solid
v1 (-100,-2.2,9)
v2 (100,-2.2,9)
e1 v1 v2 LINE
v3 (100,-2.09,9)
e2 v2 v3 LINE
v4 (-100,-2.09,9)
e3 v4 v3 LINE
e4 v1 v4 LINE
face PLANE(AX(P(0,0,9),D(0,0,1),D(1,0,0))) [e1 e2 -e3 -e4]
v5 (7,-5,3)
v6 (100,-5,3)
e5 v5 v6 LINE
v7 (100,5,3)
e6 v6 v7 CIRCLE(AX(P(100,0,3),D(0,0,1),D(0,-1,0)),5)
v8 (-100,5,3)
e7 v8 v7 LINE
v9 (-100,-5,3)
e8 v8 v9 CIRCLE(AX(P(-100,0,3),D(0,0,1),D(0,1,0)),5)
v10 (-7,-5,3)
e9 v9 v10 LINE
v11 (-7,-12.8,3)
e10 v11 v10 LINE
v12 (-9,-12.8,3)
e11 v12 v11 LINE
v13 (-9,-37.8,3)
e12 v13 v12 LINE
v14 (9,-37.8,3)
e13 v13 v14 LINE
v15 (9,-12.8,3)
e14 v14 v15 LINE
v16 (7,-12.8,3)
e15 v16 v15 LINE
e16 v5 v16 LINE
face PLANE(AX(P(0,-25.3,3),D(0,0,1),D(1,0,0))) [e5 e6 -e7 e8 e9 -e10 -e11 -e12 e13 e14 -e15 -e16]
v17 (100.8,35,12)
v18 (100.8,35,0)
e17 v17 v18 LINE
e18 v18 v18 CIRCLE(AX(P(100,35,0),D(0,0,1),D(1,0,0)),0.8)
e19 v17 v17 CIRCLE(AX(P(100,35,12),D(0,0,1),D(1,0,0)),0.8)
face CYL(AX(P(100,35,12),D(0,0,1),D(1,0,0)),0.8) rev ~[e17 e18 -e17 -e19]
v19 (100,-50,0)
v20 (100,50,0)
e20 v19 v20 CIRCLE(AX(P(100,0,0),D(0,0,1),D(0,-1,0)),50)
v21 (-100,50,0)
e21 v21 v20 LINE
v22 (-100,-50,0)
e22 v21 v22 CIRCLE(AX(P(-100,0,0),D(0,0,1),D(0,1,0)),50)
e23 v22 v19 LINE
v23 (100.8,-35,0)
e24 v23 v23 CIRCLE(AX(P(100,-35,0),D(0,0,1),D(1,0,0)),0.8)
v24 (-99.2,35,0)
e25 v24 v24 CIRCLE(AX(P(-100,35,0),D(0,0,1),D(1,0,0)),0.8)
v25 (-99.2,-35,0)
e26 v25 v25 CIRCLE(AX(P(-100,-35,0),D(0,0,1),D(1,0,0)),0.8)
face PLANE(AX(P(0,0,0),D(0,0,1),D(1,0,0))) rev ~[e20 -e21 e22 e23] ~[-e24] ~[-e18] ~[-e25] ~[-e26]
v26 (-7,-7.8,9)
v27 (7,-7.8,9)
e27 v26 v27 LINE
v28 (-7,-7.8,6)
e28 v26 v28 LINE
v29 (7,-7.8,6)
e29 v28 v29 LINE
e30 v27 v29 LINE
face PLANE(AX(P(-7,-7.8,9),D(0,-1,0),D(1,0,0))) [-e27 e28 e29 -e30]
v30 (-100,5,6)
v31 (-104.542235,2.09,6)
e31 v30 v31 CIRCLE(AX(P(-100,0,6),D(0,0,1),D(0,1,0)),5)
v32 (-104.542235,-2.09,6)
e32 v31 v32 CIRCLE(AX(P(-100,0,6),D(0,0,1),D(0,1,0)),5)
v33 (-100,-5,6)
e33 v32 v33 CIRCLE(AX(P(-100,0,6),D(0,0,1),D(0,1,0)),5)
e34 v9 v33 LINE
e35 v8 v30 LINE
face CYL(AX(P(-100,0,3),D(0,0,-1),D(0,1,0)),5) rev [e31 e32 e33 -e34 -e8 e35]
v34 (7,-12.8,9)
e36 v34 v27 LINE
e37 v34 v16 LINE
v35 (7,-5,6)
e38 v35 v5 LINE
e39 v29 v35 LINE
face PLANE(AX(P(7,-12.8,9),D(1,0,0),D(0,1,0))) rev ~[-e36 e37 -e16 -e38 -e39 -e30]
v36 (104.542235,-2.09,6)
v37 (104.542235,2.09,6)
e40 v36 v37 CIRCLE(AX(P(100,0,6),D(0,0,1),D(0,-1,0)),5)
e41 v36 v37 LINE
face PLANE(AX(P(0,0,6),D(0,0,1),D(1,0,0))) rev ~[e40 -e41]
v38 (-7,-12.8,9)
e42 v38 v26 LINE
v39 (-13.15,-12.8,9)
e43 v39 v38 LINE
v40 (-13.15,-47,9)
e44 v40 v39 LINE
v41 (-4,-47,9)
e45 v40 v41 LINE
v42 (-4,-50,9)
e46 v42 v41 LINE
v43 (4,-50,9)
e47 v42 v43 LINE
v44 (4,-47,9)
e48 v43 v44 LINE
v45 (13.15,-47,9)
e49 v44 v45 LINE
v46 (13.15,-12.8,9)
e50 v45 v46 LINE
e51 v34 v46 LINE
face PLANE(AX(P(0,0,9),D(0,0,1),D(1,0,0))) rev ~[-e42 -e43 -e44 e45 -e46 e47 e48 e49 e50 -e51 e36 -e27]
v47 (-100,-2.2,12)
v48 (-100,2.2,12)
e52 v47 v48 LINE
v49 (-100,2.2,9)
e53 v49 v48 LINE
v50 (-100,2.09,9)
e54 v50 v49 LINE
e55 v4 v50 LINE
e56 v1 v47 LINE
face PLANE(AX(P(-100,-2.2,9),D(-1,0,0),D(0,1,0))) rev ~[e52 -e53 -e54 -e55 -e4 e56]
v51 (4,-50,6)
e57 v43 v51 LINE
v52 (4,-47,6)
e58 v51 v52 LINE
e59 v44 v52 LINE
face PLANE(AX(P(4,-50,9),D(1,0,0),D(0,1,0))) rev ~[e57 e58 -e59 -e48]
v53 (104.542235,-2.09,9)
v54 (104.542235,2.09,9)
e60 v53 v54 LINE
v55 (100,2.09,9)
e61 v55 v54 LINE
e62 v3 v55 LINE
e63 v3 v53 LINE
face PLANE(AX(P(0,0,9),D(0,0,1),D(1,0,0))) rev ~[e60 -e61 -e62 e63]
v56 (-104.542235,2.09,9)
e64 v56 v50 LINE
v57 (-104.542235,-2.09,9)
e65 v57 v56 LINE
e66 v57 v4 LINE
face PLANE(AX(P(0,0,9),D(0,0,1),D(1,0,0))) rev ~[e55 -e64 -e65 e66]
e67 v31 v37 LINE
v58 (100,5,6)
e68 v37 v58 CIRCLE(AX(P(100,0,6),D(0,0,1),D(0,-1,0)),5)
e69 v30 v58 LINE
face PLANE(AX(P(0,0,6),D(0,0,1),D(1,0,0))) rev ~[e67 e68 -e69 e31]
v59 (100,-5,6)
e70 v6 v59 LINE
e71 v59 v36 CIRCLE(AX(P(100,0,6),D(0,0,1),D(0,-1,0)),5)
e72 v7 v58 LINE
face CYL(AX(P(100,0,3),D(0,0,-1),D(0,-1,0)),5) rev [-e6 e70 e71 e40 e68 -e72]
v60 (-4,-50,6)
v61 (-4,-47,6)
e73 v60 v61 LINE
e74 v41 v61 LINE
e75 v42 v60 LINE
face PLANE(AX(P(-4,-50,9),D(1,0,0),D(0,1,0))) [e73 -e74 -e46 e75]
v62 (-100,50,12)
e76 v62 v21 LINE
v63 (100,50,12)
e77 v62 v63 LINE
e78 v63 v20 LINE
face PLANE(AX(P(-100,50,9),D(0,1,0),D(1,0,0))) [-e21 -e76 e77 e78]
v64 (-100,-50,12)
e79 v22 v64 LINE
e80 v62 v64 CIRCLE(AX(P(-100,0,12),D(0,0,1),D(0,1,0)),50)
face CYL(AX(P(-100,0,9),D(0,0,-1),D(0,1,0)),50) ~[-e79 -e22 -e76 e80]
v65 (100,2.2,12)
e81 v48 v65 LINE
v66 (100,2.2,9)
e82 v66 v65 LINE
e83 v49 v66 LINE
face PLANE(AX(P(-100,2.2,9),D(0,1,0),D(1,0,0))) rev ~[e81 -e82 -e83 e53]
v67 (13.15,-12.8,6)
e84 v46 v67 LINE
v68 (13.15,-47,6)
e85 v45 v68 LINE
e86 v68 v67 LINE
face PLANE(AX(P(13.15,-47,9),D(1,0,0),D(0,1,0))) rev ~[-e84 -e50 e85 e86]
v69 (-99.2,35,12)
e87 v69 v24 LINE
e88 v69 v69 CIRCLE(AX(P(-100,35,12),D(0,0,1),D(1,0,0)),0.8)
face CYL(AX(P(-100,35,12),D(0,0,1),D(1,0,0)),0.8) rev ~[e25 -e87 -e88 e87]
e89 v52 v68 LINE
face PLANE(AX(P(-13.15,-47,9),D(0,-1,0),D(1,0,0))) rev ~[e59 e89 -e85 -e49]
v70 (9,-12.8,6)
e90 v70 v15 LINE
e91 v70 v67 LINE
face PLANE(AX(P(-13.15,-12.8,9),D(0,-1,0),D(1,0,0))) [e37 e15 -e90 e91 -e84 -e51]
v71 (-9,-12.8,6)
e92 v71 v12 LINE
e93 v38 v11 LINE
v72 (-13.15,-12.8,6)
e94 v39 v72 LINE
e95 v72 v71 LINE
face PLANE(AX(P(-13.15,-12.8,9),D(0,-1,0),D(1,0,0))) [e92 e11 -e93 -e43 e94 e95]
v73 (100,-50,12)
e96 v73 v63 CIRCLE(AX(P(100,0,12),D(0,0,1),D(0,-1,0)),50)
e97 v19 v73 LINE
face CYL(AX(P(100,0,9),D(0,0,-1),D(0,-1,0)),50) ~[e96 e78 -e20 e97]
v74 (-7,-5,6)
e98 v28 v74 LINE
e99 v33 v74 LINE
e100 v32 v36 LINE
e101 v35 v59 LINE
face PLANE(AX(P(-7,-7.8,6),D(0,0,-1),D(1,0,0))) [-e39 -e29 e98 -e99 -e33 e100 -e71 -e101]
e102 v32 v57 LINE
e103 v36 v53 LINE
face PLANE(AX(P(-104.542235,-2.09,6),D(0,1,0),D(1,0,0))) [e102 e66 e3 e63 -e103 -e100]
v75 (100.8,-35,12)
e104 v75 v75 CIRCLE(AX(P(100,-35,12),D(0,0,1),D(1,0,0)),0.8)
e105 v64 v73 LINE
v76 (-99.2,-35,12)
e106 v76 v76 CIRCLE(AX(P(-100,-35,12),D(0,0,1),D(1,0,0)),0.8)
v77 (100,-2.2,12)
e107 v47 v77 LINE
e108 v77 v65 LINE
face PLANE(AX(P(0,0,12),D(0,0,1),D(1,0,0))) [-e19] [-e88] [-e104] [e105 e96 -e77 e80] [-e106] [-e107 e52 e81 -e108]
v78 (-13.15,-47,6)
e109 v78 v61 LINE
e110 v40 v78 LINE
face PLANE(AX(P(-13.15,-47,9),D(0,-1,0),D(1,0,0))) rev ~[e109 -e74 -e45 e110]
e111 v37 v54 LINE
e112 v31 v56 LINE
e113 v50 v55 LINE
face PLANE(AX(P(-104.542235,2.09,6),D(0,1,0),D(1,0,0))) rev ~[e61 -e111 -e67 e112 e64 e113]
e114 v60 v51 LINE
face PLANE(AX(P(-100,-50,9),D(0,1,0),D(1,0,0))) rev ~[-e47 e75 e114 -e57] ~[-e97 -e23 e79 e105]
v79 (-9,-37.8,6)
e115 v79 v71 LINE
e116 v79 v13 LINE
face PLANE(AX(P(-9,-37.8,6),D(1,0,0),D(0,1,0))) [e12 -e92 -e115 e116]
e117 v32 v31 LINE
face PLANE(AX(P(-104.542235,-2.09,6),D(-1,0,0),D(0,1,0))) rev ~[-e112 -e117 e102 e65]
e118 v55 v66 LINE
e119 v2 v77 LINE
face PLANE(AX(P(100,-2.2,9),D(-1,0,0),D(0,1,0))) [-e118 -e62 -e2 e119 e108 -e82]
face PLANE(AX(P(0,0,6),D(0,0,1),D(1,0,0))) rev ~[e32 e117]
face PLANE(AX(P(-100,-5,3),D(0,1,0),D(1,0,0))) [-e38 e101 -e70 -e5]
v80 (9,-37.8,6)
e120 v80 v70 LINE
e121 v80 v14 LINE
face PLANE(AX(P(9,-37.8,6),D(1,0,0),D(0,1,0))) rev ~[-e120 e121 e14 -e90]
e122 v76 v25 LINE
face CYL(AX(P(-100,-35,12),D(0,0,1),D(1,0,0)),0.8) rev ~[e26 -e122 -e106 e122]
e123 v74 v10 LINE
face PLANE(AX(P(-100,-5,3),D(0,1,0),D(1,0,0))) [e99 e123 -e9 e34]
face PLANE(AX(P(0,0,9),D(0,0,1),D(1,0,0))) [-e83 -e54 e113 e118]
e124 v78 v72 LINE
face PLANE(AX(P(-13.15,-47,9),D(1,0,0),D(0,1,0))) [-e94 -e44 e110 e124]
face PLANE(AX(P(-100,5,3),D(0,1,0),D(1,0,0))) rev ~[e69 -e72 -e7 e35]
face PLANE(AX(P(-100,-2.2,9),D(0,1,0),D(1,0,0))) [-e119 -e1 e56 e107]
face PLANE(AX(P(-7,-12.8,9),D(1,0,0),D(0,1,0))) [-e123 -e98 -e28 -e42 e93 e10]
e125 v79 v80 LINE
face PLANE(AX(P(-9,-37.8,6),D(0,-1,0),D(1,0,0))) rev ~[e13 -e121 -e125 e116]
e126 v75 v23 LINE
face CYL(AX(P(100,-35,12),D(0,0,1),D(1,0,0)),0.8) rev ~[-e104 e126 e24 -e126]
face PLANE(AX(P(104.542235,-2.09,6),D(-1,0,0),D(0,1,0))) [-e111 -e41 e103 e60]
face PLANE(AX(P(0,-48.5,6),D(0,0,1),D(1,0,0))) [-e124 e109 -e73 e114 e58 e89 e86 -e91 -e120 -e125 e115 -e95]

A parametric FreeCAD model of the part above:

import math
import FreeCAD as App
import Part
import Sketcher

V = App.Vector
Q = App.Units.Quantity


def add_polygon(sketch, points):
    """Adds a closed chain of lines whose ends are joined by coincident constraints."""
    first, n = sketch.GeometryCount, len(points)
    for a, b in zip(points, points[1:] + points[:1]):
        sketch.addGeometry(Part.LineSegment(App.Vector(*a, 0), App.Vector(*b, 0)), False)
    for i in range(n):
        sketch.addConstraint(Sketcher.Constraint("Coincident", first + i, 2, first + (i + 1) % n, 1))

doc = App.newDocument("Part")
body = doc.addObject("PartDesign::Body", "Body")

sketch1 = doc.addObject("Sketcher::SketchObject", "Sketch")
body.addObject(sketch1)
sketch1.AttachmentSupport = (doc.XY_Plane, [""])
sketch1.MapMode = "FlatFace"
sketch1.addGeometry([
    Part.ArcOfCircle(Part.Circle(V(-100, 0, 0), V(0, 0, 1), 50), math.radians(90), math.radians(270)),
    Part.LineSegment(V(-100, -50, 0), V(100, -50, 0)),
    Part.ArcOfCircle(Part.Circle(V(100, 0, 0), V(0, 0, 1), 50), math.radians(-90), math.radians(90)),
    Part.LineSegment(V(100, 50, 0), V(-100, 50, 0)),
], False)
sketch1.addConstraint([
    Sketcher.Constraint("Tangent", 0, 2, 1, 1),
    Sketcher.Constraint("Tangent", 1, 2, 2, 1),
    Sketcher.Constraint("Tangent", 2, 2, 3, 1),
    Sketcher.Constraint("Tangent", 3, 2, 0, 1),
    Sketcher.Constraint("Horizontal", 1),
    Sketcher.Constraint("Horizontal", 3),
    Sketcher.Constraint("Symmetric", 0, 3, 2, 3, -1, 1),
    Sketcher.Constraint("Radius", 0, Q("50 mm")),
    Sketcher.Constraint("DistanceX", 1, 1, 1, 2, Q("200 mm")),
])
pad1 = doc.addObject("PartDesign::Pad", "Pad")
body.addObject(pad1)
pad1.Profile = sketch1
pad1.Length = 3

sketch2 = doc.addObject("Sketcher::SketchObject", "Sketch001")
body.addObject(sketch2)
sketch2.AttachmentSupport = (doc.XY_Plane, [""])
sketch2.MapMode = "FlatFace"
sketch2.AttachmentOffset = App.Placement(V(0, 0, 3), App.Rotation())
sketch2.addGeometry([
    Part.ArcOfCircle(Part.Circle(V(-100, 0, 0), V(0, 0, 1), 50), math.radians(90), math.radians(270)),
    Part.LineSegment(V(-100, -50, 0), V(100, -50, 0)),
    Part.ArcOfCircle(Part.Circle(V(100, 0, 0), V(0, 0, 1), 50), math.radians(-90), math.radians(90)),
    Part.LineSegment(V(100, 50, 0), V(-100, 50, 0)),
    Part.ArcOfCircle(Part.Circle(V(-100, 0, 0), V(0, 0, 1), 5), math.radians(90), math.radians(270)),
    Part.LineSegment(V(-100, 5, 0), V(100, 5, 0)),
    Part.ArcOfCircle(Part.Circle(V(100, 0, 0), V(0, 0, 1), 5), math.radians(-90), math.radians(90)),
    Part.LineSegment(V(100, -5, 0), V(-100, -5, 0)),
], False)
sketch2.addConstraint([
    Sketcher.Constraint("Tangent", 0, 2, 1, 1),
    Sketcher.Constraint("Tangent", 1, 2, 2, 1),
    Sketcher.Constraint("Tangent", 2, 2, 3, 1),
    Sketcher.Constraint("Tangent", 3, 2, 0, 1),
    Sketcher.Constraint("Tangent", 4, 1, 5, 1),
    Sketcher.Constraint("Tangent", 5, 2, 6, 2),
    Sketcher.Constraint("Tangent", 6, 1, 7, 1),
    Sketcher.Constraint("Tangent", 7, 2, 4, 2),
    Sketcher.Constraint("Horizontal", 1),
    Sketcher.Constraint("Horizontal", 3),
    Sketcher.Constraint("Horizontal", 5),
    Sketcher.Constraint("Horizontal", 7),
    Sketcher.Constraint("Coincident", 4, 3, 0, 3),
    Sketcher.Constraint("Symmetric", 0, 3, 2, 3, -1, 1),
    Sketcher.Constraint("Vertical", 6, 3, 1, 2),
    Sketcher.Constraint("Radius", 0, Q("50 mm")),
    Sketcher.Constraint("Radius", 4, Q("5 mm")),
    Sketcher.Constraint("DistanceX", 1, 1, 1, 2, Q("200 mm")),
])
pad2 = doc.addObject("PartDesign::Pad", "Pad001")
body.addObject(pad2)
pad2.Profile = sketch2
pad2.Length = 3

sketch3 = doc.addObject("Sketcher::SketchObject", "Sketch002")
body.addObject(sketch3)
sketch3.AttachmentSupport = (doc.XY_Plane, [""])
sketch3.MapMode = "FlatFace"
sketch3.AttachmentOffset = App.Placement(V(0, 0, 6), App.Rotation())
sketch3.addGeometry(Part.ArcOfCircle(Part.Circle(V(-100, 0, 0), V(0, 0, 1), 50), math.radians(90), math.radians(270)), False)
sketch3.addGeometry(Part.LineSegment(V(-100, -50, 0), V(100, -50, 0)), False)
sketch3.addGeometry(Part.ArcOfCircle(Part.Circle(V(100, 0, 0), V(0, 0, 1), 50), math.radians(-90), math.radians(90)), False)
sketch3.addGeometry(Part.LineSegment(V(100, 50, 0), V(-100, 50, 0)), False)
add_polygon(sketch3, [(104.5, -2.1), (-104.5, -2.1), (-104.5, 2.1), (104.5, 2.1)])
sketch3.addConstraint([
    Sketcher.Constraint("Tangent", 0, 2, 1, 1),
    Sketcher.Constraint("Tangent", 1, 2, 2, 1),
    Sketcher.Constraint("Tangent", 2, 2, 3, 1),
    Sketcher.Constraint("Tangent", 3, 2, 0, 1),
    Sketcher.Constraint("Horizontal", 1),
    Sketcher.Constraint("Horizontal", 3),
    Sketcher.Constraint("Horizontal", 4),
    Sketcher.Constraint("Vertical", 5),
    Sketcher.Constraint("Horizontal", 6),
    Sketcher.Constraint("Vertical", 7),
    Sketcher.Constraint("Symmetric", 0, 3, 2, 3, -1, 1),
    Sketcher.Constraint("Symmetric", 4, 2, 6, 2, -1, 1),
    Sketcher.Constraint("Radius", 0, Q("50 mm")),
    Sketcher.Constraint("DistanceX", 1, 1, 1, 2, Q("200 mm")),
    Sketcher.Constraint("DistanceY", 5, 1, 5, 2, Q("4.18 mm")),
    Sketcher.Constraint("DistanceX", 4, 2, 4, 1, Q("209.08447 mm")),
])
pad3 = doc.addObject("PartDesign::Pad", "Pad002")
body.addObject(pad3)
pad3.Profile = sketch3
pad3.Length = 3

sketch4 = doc.addObject("Sketcher::SketchObject", "Sketch003")
body.addObject(sketch4)
sketch4.AttachmentSupport = (doc.XY_Plane, [""])
sketch4.MapMode = "FlatFace"
sketch4.AttachmentOffset = App.Placement(V(0, 0, 9), App.Rotation())
add_polygon(sketch4, [(-13, -13), (-13, -47), (13, -47), (13, -13)])
sketch4.addConstraint([
    Sketcher.Constraint("Vertical", 0),
    Sketcher.Constraint("Horizontal", 1),
    Sketcher.Constraint("Vertical", 2),
    Sketcher.Constraint("Horizontal", 3),
    Sketcher.Constraint("DistanceX", 1, 1, 1, 2, Q("26.3 mm")),
    Sketcher.Constraint("DistanceY", 0, 2, 0, 1, Q("34.2 mm")),
    Sketcher.Constraint("DistanceY", 0, 2, -1, 1, Q("47 mm")),
    Sketcher.Constraint("DistanceX", 0, 2, -1, 1, Q("13.15 mm")),
])
pocket1 = doc.addObject("PartDesign::Pocket", "Pocket")
body.addObject(pocket1)
pocket1.Profile = sketch4
pocket1.Length = 3

sketch5 = doc.addObject("Sketcher::SketchObject", "Sketch004")
body.addObject(sketch5)
sketch5.AttachmentSupport = (doc.XY_Plane, [""])
sketch5.MapMode = "FlatFace"
sketch5.AttachmentOffset = App.Placement(V(0, 0, 6), App.Rotation())
add_polygon(sketch5, [(-9, -13), (-9, -38), (9, -38), (9, -13)])
sketch5.addConstraint([
    Sketcher.Constraint("Vertical", 0),
    Sketcher.Constraint("Horizontal", 1),
    Sketcher.Constraint("Vertical", 2),
    Sketcher.Constraint("Horizontal", 3),
    Sketcher.Constraint("DistanceX", 1, 1, 1, 2, Q("18 mm")),
    Sketcher.Constraint("DistanceY", 0, 2, 0, 1, Q("25 mm")),
    Sketcher.Constraint("DistanceX", 0, 2, -1, 1, Q("9 mm")),
    Sketcher.Constraint("DistanceY", 0, 2, -1, 1, Q("37.8 mm")),
])
pocket2 = doc.addObject("PartDesign::Pocket", "Pocket001")
body.addObject(pocket2)
pocket2.Profile = sketch5
pocket2.Length = 3

sketch6 = doc.addObject("Sketcher::SketchObject", "Sketch005")
body.addObject(sketch6)
sketch6.AttachmentSupport = (doc.XY_Plane, [""])
sketch6.MapMode = "FlatFace"
sketch6.AttachmentOffset = App.Placement(V(0, 0, 9), App.Rotation())
add_polygon(sketch6, [(-7, -8), (-7, -13), (7, -13), (7, -8)])
sketch6.addConstraint([
    Sketcher.Constraint("Vertical", 0),
    Sketcher.Constraint("Horizontal", 1),
    Sketcher.Constraint("Vertical", 2),
    Sketcher.Constraint("Horizontal", 3),
    Sketcher.Constraint("DistanceX", 1, 1, 1, 2, Q("14 mm")),
    Sketcher.Constraint("DistanceY", 0, 2, 0, 1, Q("5 mm")),
    Sketcher.Constraint("DistanceX", 0, 2, -1, 1, Q("7 mm")),
    Sketcher.Constraint("DistanceY", 0, 2, -1, 1, Q("12.8 mm")),
])
pocket3 = doc.addObject("PartDesign::Pocket", "Pocket002")
body.addObject(pocket3)
pocket3.Profile = sketch6
pocket3.Length = 6

sketch7 = doc.addObject("Sketcher::SketchObject", "Sketch006")
body.addObject(sketch7)
sketch7.AttachmentSupport = (doc.XZ_Plane, [""])
sketch7.MapMode = "FlatFace"
sketch7.AttachmentOffset = App.Placement(V(0, 0, 7.8), App.Rotation())
add_polygon(sketch7, [(-7, 6), (-7, 3), (7, 3), (7, 6)])
sketch7.addConstraint([
    Sketcher.Constraint("Vertical", 0),
    Sketcher.Constraint("Horizontal", 1),
    Sketcher.Constraint("Vertical", 2),
    Sketcher.Constraint("Horizontal", 3),
    Sketcher.Constraint("DistanceX", 1, 1, 1, 2, Q("14 mm")),
    Sketcher.Constraint("DistanceY", 0, 2, 0, 1, Q("3 mm")),
    Sketcher.Constraint("DistanceX", 0, 2, -1, 1, Q("7 mm")),
    Sketcher.Constraint("DistanceY", -1, 1, 0, 2, Q("3 mm")),
])
pocket4 = doc.addObject("PartDesign::Pocket", "Pocket003")
body.addObject(pocket4)
pocket4.Profile = sketch7
pocket4.Length = 3

sketch8 = doc.addObject("Sketcher::SketchObject", "Sketch007")
body.addObject(sketch8)
sketch8.AttachmentSupport = (doc.XY_Plane, [""])
sketch8.MapMode = "FlatFace"
sketch8.AttachmentOffset = App.Placement(V(0, 0, 9), App.Rotation())
add_polygon(sketch8, [(-4, -47), (-4, -50), (4, -50), (4, -47)])
sketch8.addConstraint([
    Sketcher.Constraint("Vertical", 0),
    Sketcher.Constraint("Horizontal", 1),
    Sketcher.Constraint("Vertical", 2),
    Sketcher.Constraint("Horizontal", 3),
    Sketcher.Constraint("DistanceX", 1, 1, 1, 2, Q("8 mm")),
    Sketcher.Constraint("DistanceY", 0, 2, 0, 1, Q("3 mm")),
    Sketcher.Constraint("DistanceX", 0, 2, -1, 1, Q("4 mm")),
    Sketcher.Constraint("DistanceY", 0, 2, -1, 1, Q("50 mm")),
])
pocket5 = doc.addObject("PartDesign::Pocket", "Pocket004")
body.addObject(pocket5)
pocket5.Profile = sketch8
pocket5.Length = 3

sketch9 = doc.addObject("Sketcher::SketchObject", "Sketch008")
body.addObject(sketch9)
sketch9.AttachmentSupport = (doc.XY_Plane, [""])
sketch9.MapMode = "FlatFace"
sketch9.AttachmentOffset = App.Placement(V(0, 0, 9), App.Rotation())
sketch9.addGeometry(Part.ArcOfCircle(Part.Circle(V(-100, 0, 0), V(0, 0, 1), 50), math.radians(90), math.radians(270)), False)
sketch9.addGeometry(Part.LineSegment(V(-100, -50, 0), V(100, -50, 0)), False)
sketch9.addGeometry(Part.ArcOfCircle(Part.Circle(V(100, 0, 0), V(0, 0, 1), 50), math.radians(-90), math.radians(90)), False)
sketch9.addGeometry(Part.LineSegment(V(100, 50, 0), V(-100, 50, 0)), False)
add_polygon(sketch9, [(100, -2.2), (-100, -2.2), (-100, 2.2), (100, 2.2)])
sketch9.addConstraint([
    Sketcher.Constraint("Tangent", 0, 2, 1, 1),
    Sketcher.Constraint("Tangent", 1, 2, 2, 1),
    Sketcher.Constraint("Tangent", 2, 2, 3, 1),
    Sketcher.Constraint("Tangent", 3, 2, 0, 1),
    Sketcher.Constraint("Horizontal", 1),
    Sketcher.Constraint("Horizontal", 3),
    Sketcher.Constraint("Horizontal", 4),
    Sketcher.Constraint("Vertical", 5),
    Sketcher.Constraint("Horizontal", 6),
    Sketcher.Constraint("Vertical", 7),
    Sketcher.Constraint("Symmetric", 0, 3, 2, 3, -1, 1),
    Sketcher.Constraint("Symmetric", 4, 2, 6, 2, -1, 1),
    Sketcher.Constraint("Vertical", 3, 2, 4, 2),
    Sketcher.Constraint("Radius", 0, Q("50 mm")),
    Sketcher.Constraint("DistanceX", 1, 1, 1, 2, Q("200 mm")),
    Sketcher.Constraint("DistanceY", 5, 1, 5, 2, Q("4.4 mm")),
])
pad4 = doc.addObject("PartDesign::Pad", "Pad003")
body.addObject(pad4)
pad4.Profile = sketch9
pad4.Length = 3

sketch10 = doc.addObject("Sketcher::SketchObject", "Sketch009")
body.addObject(sketch10)
sketch10.AttachmentSupport = (doc.XY_Plane, [""])
sketch10.MapMode = "FlatFace"
sketch10.AttachmentOffset = App.Placement(V(0, 0, 12), App.Rotation())
sketch10.addGeometry([
    Part.Circle(V(-100, 35, 0), V(0, 0, 1), 0.8),
    Part.Circle(V(-100, -35, 0), V(0, 0, 1), 0.8),
    Part.Circle(V(100, 35, 0), V(0, 0, 1), 0.8),
    Part.Circle(V(100, -35, 0), V(0, 0, 1), 0.8),
], False)
sketch10.addConstraint([
    Sketcher.Constraint("Equal", 0, 1),
    Sketcher.Constraint("Equal", 1, 2),
    Sketcher.Constraint("Equal", 2, 3),
    Sketcher.Constraint("Symmetric", 1, 3, 2, 3, -1, 1),
    Sketcher.Constraint("Symmetric", 0, 3, 3, 3, -1, 1),
    Sketcher.Constraint("Symmetric", 0, 3, 2, 3, -2),
    Sketcher.Constraint("Diameter", 0, Q("1.6 mm")),
    Sketcher.Constraint("DistanceX", 0, 3, -1, 1, Q("100 mm")),
    Sketcher.Constraint("DistanceY", -1, 1, 0, 3, Q("35 mm")),
])
pocket6 = doc.addObject("PartDesign::Pocket", "Pocket005")
body.addObject(pocket6)
pocket6.Profile = sketch10
pocket6.Length = 12

doc.recompute()
